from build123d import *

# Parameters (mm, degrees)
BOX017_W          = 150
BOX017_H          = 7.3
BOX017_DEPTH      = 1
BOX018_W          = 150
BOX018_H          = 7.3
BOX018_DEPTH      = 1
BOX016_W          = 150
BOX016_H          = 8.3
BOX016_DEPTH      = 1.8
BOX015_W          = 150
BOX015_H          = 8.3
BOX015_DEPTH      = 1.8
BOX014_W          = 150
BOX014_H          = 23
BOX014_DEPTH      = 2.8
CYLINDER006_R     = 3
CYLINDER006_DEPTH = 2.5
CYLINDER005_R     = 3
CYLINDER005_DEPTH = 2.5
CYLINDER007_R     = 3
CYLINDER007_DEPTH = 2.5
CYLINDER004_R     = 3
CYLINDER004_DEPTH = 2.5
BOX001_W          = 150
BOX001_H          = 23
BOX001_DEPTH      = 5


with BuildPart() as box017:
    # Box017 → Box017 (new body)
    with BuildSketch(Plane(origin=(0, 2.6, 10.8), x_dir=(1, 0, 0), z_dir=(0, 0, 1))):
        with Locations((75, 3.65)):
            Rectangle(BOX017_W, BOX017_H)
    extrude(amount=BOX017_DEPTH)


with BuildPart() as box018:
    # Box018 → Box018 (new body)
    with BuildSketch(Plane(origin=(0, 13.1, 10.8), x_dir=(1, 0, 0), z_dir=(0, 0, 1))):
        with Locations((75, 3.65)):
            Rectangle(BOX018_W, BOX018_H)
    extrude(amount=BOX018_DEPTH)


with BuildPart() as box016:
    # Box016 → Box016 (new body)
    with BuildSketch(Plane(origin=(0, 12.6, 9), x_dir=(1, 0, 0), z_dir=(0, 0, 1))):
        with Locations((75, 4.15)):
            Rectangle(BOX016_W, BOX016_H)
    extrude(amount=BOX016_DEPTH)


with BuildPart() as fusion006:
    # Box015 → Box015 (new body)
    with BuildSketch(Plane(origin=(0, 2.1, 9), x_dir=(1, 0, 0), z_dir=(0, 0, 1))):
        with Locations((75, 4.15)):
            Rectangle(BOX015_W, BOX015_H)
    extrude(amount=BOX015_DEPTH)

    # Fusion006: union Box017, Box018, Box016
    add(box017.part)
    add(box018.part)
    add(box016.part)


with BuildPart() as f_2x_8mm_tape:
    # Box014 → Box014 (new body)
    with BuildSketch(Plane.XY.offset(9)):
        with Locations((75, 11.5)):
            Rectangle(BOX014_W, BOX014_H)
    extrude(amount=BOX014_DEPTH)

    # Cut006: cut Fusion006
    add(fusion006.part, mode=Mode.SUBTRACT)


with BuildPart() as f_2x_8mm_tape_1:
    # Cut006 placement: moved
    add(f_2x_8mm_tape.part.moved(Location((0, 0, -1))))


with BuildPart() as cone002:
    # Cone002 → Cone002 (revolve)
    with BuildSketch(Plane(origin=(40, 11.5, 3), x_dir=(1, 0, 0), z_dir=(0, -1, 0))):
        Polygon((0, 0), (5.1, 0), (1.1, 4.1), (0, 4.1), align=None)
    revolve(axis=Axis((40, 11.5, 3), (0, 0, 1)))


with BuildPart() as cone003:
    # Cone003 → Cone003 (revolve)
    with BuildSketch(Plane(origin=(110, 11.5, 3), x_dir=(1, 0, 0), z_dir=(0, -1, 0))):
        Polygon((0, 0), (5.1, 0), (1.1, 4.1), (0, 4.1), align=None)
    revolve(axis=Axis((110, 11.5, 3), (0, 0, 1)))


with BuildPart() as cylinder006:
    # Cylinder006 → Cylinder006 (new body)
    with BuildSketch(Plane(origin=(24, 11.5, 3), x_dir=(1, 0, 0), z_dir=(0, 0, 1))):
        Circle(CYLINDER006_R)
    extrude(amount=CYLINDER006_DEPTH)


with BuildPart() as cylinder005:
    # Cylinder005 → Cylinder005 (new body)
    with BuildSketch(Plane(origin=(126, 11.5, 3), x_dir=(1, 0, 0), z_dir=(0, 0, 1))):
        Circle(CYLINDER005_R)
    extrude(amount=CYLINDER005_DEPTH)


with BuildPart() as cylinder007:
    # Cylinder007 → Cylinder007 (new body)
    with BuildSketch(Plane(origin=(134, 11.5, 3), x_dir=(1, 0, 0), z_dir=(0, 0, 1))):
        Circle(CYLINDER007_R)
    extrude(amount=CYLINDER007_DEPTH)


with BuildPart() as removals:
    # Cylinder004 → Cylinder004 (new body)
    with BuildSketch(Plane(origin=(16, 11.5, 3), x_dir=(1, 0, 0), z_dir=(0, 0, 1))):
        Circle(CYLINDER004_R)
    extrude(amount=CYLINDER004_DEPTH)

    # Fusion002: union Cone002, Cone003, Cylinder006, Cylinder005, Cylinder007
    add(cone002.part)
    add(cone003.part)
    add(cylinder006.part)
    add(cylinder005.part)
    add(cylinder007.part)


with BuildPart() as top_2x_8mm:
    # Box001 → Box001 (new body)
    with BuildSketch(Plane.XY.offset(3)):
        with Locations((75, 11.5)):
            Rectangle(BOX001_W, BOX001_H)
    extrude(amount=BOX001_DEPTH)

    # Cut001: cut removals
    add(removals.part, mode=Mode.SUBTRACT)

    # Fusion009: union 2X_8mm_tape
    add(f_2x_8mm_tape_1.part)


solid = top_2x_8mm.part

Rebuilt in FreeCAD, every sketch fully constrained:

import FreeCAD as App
import Part
import Sketcher
from FreeCAD import Vector
Q = App.Units.Quantity


def add_polygon(sketch, points):
    """Adds a closed chain of lines whose ends are joined by coincident constraints."""
    first, n = sketch.GeometryCount, len(points)
    for a, b in zip(points, points[1:] + points[:1]):
        sketch.addGeometry(Part.LineSegment(App.Vector(*a, 0), App.Vector(*b, 0)), False)
    for i in range(n):
        sketch.addConstraint(Sketcher.Constraint("Coincident", first + i, 2, first + (i + 1) % n, 1))

doc = App.newDocument("Part")
body = doc.addObject("PartDesign::Body", "Body")

sketch1 = body.newObject("Sketcher::SketchObject", "Sketch")
sketch1.AttachmentSupport = (doc.getObject("XY_Plane"), [""])
sketch1.MapMode = "FlatFace"
sketch1.AttachmentOffset = App.Placement(Vector(0, 0, 10.8), App.Rotation())
add_polygon(sketch1, [(0, 9.9), (0, 2.6), (150, 2.6), (150, 9.9)])
sketch1.addConstraint([
    Sketcher.Constraint("Vertical", 0),
    Sketcher.Constraint("Horizontal", 1),
    Sketcher.Constraint("Vertical", 2),
    Sketcher.Constraint("Horizontal", 3),
    Sketcher.Constraint("PointOnObject", 0, 2, -2),
    Sketcher.Constraint("DistanceX", 1, 1, 1, 2, Q("150 mm")),
    Sketcher.Constraint("DistanceY", 0, 2, 0, 1, Q("7.3 mm")),
    Sketcher.Constraint("DistanceY", -1, 1, 0, 2, Q("2.6 mm")),
])
pad1 = body.newObject("PartDesign::Pad", "Pad")
pad1.Profile = sketch1
pad1.Length = 1
body2 = doc.addObject("PartDesign::Body", "Body001")

sketch2 = body2.newObject("Sketcher::SketchObject", "Sketch001")
sketch2.AttachmentSupport = (doc.getObject("XY_Plane001"), [""])
sketch2.MapMode = "FlatFace"
sketch2.AttachmentOffset = App.Placement(Vector(0, 0, 10.8), App.Rotation())
add_polygon(sketch2, [(0, 20.4), (0, 13.1), (150, 13.1), (150, 20.4)])
sketch2.addConstraint([
    Sketcher.Constraint("Vertical", 0),
    Sketcher.Constraint("Horizontal", 1),
    Sketcher.Constraint("Vertical", 2),
    Sketcher.Constraint("Horizontal", 3),
    Sketcher.Constraint("PointOnObject", 0, 2, -2),
    Sketcher.Constraint("DistanceX", 1, 1, 1, 2, Q("150 mm")),
    Sketcher.Constraint("DistanceY", 0, 2, 0, 1, Q("7.3 mm")),
    Sketcher.Constraint("DistanceY", -1, 1, 0, 2, Q("13.1 mm")),
])
pad2 = body2.newObject("PartDesign::Pad", "Pad001")
pad2.Profile = sketch2
pad2.Length = 1
body3 = doc.addObject("PartDesign::Body", "Body002")

sketch3 = body3.newObject("Sketcher::SketchObject", "Sketch002")
sketch3.AttachmentSupport = (doc.getObject("XY_Plane002"), [""])
sketch3.MapMode = "FlatFace"
sketch3.AttachmentOffset = App.Placement(Vector(0, 0, 9), App.Rotation())
add_polygon(sketch3, [(0, 20.9), (0, 12.6), (150, 12.6), (150, 20.9)])
sketch3.addConstraint([
    Sketcher.Constraint("Vertical", 0),
    Sketcher.Constraint("Horizontal", 1),
    Sketcher.Constraint("Vertical", 2),
    Sketcher.Constraint("Horizontal", 3),
    Sketcher.Constraint("PointOnObject", 0, 2, -2),
    Sketcher.Constraint("DistanceX", 1, 1, 1, 2, Q("150 mm")),
    Sketcher.Constraint("DistanceY", 0, 2, 0, 1, Q("8.3 mm")),
    Sketcher.Constraint("DistanceY", -1, 1, 0, 2, Q("12.6 mm")),
])
pad3 = body3.newObject("PartDesign::Pad", "Pad002")
pad3.Profile = sketch3
pad3.Length = 1.8
body4 = doc.addObject("PartDesign::Body", "Body003")
body4.AllowCompound = True

sketch4 = body4.newObject("Sketcher::SketchObject", "Sketch003")
sketch4.AttachmentSupport = (doc.getObject("XY_Plane003"), [""])
sketch4.MapMode = "FlatFace"
sketch4.AttachmentOffset = App.Placement(Vector(0, 0, 9), App.Rotation())
add_polygon(sketch4, [(0, 10.4), (0, 2.1), (150, 2.1), (150, 10.4)])
sketch4.addConstraint([
    Sketcher.Constraint("Vertical", 0),
    Sketcher.Constraint("Horizontal", 1),
    Sketcher.Constraint("Vertical", 2),
    Sketcher.Constraint("Horizontal", 3),
    Sketcher.Constraint("PointOnObject", 0, 2, -2),
    Sketcher.Constraint("DistanceX", 1, 1, 1, 2, Q("150 mm")),
    Sketcher.Constraint("DistanceY", 0, 2, 0, 1, Q("8.3 mm")),
    Sketcher.Constraint("DistanceY", -1, 1, 0, 2, Q("2.1 mm")),
])
pad4 = body4.newObject("PartDesign::Pad", "Pad003")
pad4.Profile = sketch4
pad4.Length = 1.8
doc.recompute()

boolean = body4.newObject("PartDesign::Boolean", "Boolean")
boolean.Type = "Fuse"
boolean.addObjects([body])
doc.recompute()

boolean2 = body4.newObject("PartDesign::Boolean", "Boolean001")
boolean2.Type = "Fuse"
boolean2.addObjects([body2])
doc.recompute()

boolean3 = body4.newObject("PartDesign::Boolean", "Boolean002")
boolean3.Type = "Fuse"
boolean3.addObjects([body3])
body5 = doc.addObject("PartDesign::Body", "Body004")
body5.AllowCompound = True

sketch5 = body5.newObject("Sketcher::SketchObject", "Sketch004")
sketch5.AttachmentSupport = (doc.getObject("XY_Plane004"), [""])
sketch5.MapMode = "FlatFace"
sketch5.AttachmentOffset = App.Placement(Vector(0, 0, 9), App.Rotation())
add_polygon(sketch5, [(0, 23), (0, 0), (150, 0), (150, 23)])
sketch5.addConstraint([
    Sketcher.Constraint("Vertical", 0),
    Sketcher.Constraint("Horizontal", 1),
    Sketcher.Constraint("Vertical", 2),
    Sketcher.Constraint("Horizontal", 3),
    Sketcher.Constraint("Coincident", 0, 2, -1, 1),
    Sketcher.Constraint("DistanceX", 1, 1, 1, 2, Q("150 mm")),
    Sketcher.Constraint("DistanceY", 0, 2, 0, 1, Q("23 mm")),
])
pad5 = body5.newObject("PartDesign::Pad", "Pad004")
pad5.Profile = sketch5
pad5.Length = 2.8
doc.recompute()

boolean4 = body5.newObject("PartDesign::Boolean", "Boolean003")
boolean4.Type = "Cut"
boolean4.addObjects([body4])
body6 = doc.addObject("PartDesign::Body", "Body005")
body6.AllowCompound = True
doc.recompute()

body5.Placement = App.Placement(Vector(0, 0, -1), App.Rotation(Vector(0, 0, 1), 0))
boolean5 = body6.newObject("PartDesign::Boolean", "Boolean004")
boolean5.Type = "Fuse"
boolean5.addObjects([body5])
body7 = doc.addObject("PartDesign::Body", "Body006")

sketch6 = body7.newObject("Sketcher::SketchObject", "Sketch005")
sketch6.AttachmentSupport = (doc.getObject("XZ_Plane006"), [""])
sketch6.MapMode = "FlatFace"
sketch6.AttachmentOffset = App.Placement(Vector(0, 0, -11.5), App.Rotation())
add_polygon(sketch6, [(40, 3), (45.1, 3), (41.1, 7.1), (40, 7.1)])
sketch6.addGeometry(Part.LineSegment(Vector(40, 3, 0), Vector(40, 7.1, 0)), True)
sketch6.addConstraint([
    Sketcher.Constraint("Horizontal", 0),
    Sketcher.Constraint("Horizontal", 2),
    Sketcher.Constraint("Vertical", 3),
    Sketcher.Constraint("Vertical", 4),
    Sketcher.Constraint("Coincident", 4, 1, 3, 2),
    Sketcher.Constraint("Horizontal", 1, 2, 4, 2),
    Sketcher.Constraint("DistanceX", 0, 1, 0, 2, Q("5.1 mm")),
    Sketcher.Constraint("DistanceX", 2, 2, 2, 1, Q("1.1 mm")),
    Sketcher.Constraint("DistanceY", 3, 2, 3, 1, Q("4.1 mm")),
    Sketcher.Constraint("DistanceY", -1, 1, 0, 2, Q("3 mm")),
    Sketcher.Constraint("DistanceX", -1, 1, 2, 2, Q("40 mm")),
])
revolution = body7.newObject("PartDesign::Revolution", "Revolution")
revolution.Profile = sketch6
revolution.ReferenceAxis = (sketch6, ["Axis0"])
revolution.Angle = 360
body8 = doc.addObject("PartDesign::Body", "Body007")

sketch7 = body8.newObject("Sketcher::SketchObject", "Sketch006")
sketch7.AttachmentSupport = (doc.getObject("XZ_Plane007"), [""])
sketch7.MapMode = "FlatFace"
sketch7.AttachmentOffset = App.Placement(Vector(0, 0, -11.5), App.Rotation())
add_polygon(sketch7, [(110, 3), (115.1, 3), (111.1, 7.1), (110, 7.1)])
sketch7.addGeometry(Part.LineSegment(Vector(110, 3, 0), Vector(110, 7.1, 0)), True)
sketch7.addConstraint([
    Sketcher.Constraint("Horizontal", 0),
    Sketcher.Constraint("Horizontal", 2),
    Sketcher.Constraint("Vertical", 3),
    Sketcher.Constraint("Vertical", 4),
    Sketcher.Constraint("Coincident", 4, 1, 3, 2),
    Sketcher.Constraint("Horizontal", 1, 2, 4, 2),
    Sketcher.Constraint("DistanceX", 0, 1, 0, 2, Q("5.1 mm")),
    Sketcher.Constraint("DistanceX", 2, 2, 2, 1, Q("1.1 mm")),
    Sketcher.Constraint("DistanceY", 3, 2, 3, 1, Q("4.1 mm")),
    Sketcher.Constraint("DistanceY", -1, 1, 0, 2, Q("3 mm")),
    Sketcher.Constraint("DistanceX", -1, 1, 2, 2, Q("110 mm")),
])
revolution2 = body8.newObject("PartDesign::Revolution", "Revolution001")
revolution2.Profile = sketch7
revolution2.ReferenceAxis = (sketch7, ["Axis0"])
revolution2.Angle = 360
body9 = doc.addObject("PartDesign::Body", "Body008")

sketch8 = body9.newObject("Sketcher::SketchObject", "Sketch007")
sketch8.AttachmentSupport = (doc.getObject("XY_Plane008"), [""])
sketch8.MapMode = "FlatFace"
sketch8.AttachmentOffset = App.Placement(Vector(0, 0, 3), App.Rotation())
sketch8.addGeometry(Part.Circle(Vector(24, 11.5, 0), Vector(0, 0, 1), 3), False)
sketch8.addConstraint([
    Sketcher.Constraint("Diameter", 0, Q("6 mm")),
    Sketcher.Constraint("DistanceX", -1, 1, 0, 3, Q("24 mm")),
    Sketcher.Constraint("DistanceY", -1, 1, 0, 3, Q("11.5 mm")),
])
pad6 = body9.newObject("PartDesign::Pad", "Pad005")
pad6.Profile = sketch8
pad6.Length = 2.5
body10 = doc.addObject("PartDesign::Body", "Body009")

sketch9 = body10.newObject("Sketcher::SketchObject", "Sketch008")
sketch9.AttachmentSupport = (doc.getObject("XY_Plane009"), [""])
sketch9.MapMode = "FlatFace"
sketch9.AttachmentOffset = App.Placement(Vector(0, 0, 3), App.Rotation())
sketch9.addGeometry(Part.Circle(Vector(126, 11.5, 0), Vector(0, 0, 1), 3), False)
sketch9.addConstraint([
    Sketcher.Constraint("Diameter", 0, Q("6 mm")),
    Sketcher.Constraint("DistanceX", -1, 1, 0, 3, Q("126 mm")),
    Sketcher.Constraint("DistanceY", -1, 1, 0, 3, Q("11.5 mm")),
])
pad7 = body10.newObject("PartDesign::Pad", "Pad006")
pad7.Profile = sketch9
pad7.Length = 2.5
body11 = doc.addObject("PartDesign::Body", "Body010")

sketch10 = body11.newObject("Sketcher::SketchObject", "Sketch009")
sketch10.AttachmentSupport = (doc.getObject("XY_Plane010"), [""])
sketch10.MapMode = "FlatFace"
sketch10.AttachmentOffset = App.Placement(Vector(0, 0, 3), App.Rotation())
sketch10.addGeometry(Part.Circle(Vector(134, 11.5, 0), Vector(0, 0, 1), 3), False)
sketch10.addConstraint([
    Sketcher.Constraint("Diameter", 0, Q("6 mm")),
    Sketcher.Constraint("DistanceX", -1, 1, 0, 3, Q("134 mm")),
    Sketcher.Constraint("DistanceY", -1, 1, 0, 3, Q("11.5 mm")),
])
pad8 = body11.newObject("PartDesign::Pad", "Pad007")
pad8.Profile = sketch10
pad8.Length = 2.5
body12 = doc.addObject("PartDesign::Body", "Body011")
body12.AllowCompound = True

sketch11 = body12.newObject("Sketcher::SketchObject", "Sketch010")
sketch11.AttachmentSupport = (doc.getObject("XY_Plane011"), [""])
sketch11.MapMode = "FlatFace"
sketch11.AttachmentOffset = App.Placement(Vector(0, 0, 3), App.Rotation())
sketch11.addGeometry(Part.Circle(Vector(16, 11.5, 0), Vector(0, 0, 1), 3), False)
sketch11.addConstraint([
    Sketcher.Constraint("Diameter", 0, Q("6 mm")),
    Sketcher.Constraint("DistanceX", -1, 1, 0, 3, Q("16 mm")),
    Sketcher.Constraint("DistanceY", -1, 1, 0, 3, Q("11.5 mm")),
])
pad9 = body12.newObject("PartDesign::Pad", "Pad008")
pad9.Profile = sketch11
pad9.Length = 2.5
doc.recompute()

boolean6 = body12.newObject("PartDesign::Boolean", "Boolean005")
boolean6.Type = "Fuse"
boolean6.addObjects([body7])
doc.recompute()

boolean7 = body12.newObject("PartDesign::Boolean", "Boolean006")
boolean7.Type = "Fuse"
boolean7.addObjects([body8])
doc.recompute()

boolean8 = body12.newObject("PartDesign::Boolean", "Boolean007")
boolean8.Type = "Fuse"
boolean8.addObjects([body9])
doc.recompute()

boolean9 = body12.newObject("PartDesign::Boolean", "Boolean008")
boolean9.Type = "Fuse"
boolean9.addObjects([body10])
doc.recompute()

boolean10 = body12.newObject("PartDesign::Boolean", "Boolean009")
boolean10.Type = "Fuse"
boolean10.addObjects([body11])
body13 = doc.addObject("PartDesign::Body", "Body012")

sketch12 = body13.newObject("Sketcher::SketchObject", "Sketch011")
sketch12.AttachmentSupport = (doc.getObject("XY_Plane012"), [""])
sketch12.MapMode = "FlatFace"
sketch12.AttachmentOffset = App.Placement(Vector(0, 0, 3), App.Rotation())
add_polygon(sketch12, [(0, 23), (0, 0), (150, 0), (150, 23)])
sketch12.addConstraint([
    Sketcher.Constraint("Vertical", 0),
    Sketcher.Constraint("Horizontal", 1),
    Sketcher.Constraint("Vertical", 2),
    Sketcher.Constraint("Horizontal", 3),
    Sketcher.Constraint("Coincident", 0, 2, -1, 1),
    Sketcher.Constraint("DistanceX", 1, 1, 1, 2, Q("150 mm")),
    Sketcher.Constraint("DistanceY", 0, 2, 0, 1, Q("23 mm")),
])
pad10 = body13.newObject("PartDesign::Pad", "Pad009")
pad10.Profile = sketch12
pad10.Length = 5
doc.recompute()

boolean11 = body13.newObject("PartDesign::Boolean", "Boolean010")
boolean11.Type = "Cut"
boolean11.addObjects([body12])
doc.recompute()

boolean12 = body13.newObject("PartDesign::Boolean", "Boolean011")
boolean12.Type = "Fuse"
boolean12.addObjects([body6])

doc.recompute()
